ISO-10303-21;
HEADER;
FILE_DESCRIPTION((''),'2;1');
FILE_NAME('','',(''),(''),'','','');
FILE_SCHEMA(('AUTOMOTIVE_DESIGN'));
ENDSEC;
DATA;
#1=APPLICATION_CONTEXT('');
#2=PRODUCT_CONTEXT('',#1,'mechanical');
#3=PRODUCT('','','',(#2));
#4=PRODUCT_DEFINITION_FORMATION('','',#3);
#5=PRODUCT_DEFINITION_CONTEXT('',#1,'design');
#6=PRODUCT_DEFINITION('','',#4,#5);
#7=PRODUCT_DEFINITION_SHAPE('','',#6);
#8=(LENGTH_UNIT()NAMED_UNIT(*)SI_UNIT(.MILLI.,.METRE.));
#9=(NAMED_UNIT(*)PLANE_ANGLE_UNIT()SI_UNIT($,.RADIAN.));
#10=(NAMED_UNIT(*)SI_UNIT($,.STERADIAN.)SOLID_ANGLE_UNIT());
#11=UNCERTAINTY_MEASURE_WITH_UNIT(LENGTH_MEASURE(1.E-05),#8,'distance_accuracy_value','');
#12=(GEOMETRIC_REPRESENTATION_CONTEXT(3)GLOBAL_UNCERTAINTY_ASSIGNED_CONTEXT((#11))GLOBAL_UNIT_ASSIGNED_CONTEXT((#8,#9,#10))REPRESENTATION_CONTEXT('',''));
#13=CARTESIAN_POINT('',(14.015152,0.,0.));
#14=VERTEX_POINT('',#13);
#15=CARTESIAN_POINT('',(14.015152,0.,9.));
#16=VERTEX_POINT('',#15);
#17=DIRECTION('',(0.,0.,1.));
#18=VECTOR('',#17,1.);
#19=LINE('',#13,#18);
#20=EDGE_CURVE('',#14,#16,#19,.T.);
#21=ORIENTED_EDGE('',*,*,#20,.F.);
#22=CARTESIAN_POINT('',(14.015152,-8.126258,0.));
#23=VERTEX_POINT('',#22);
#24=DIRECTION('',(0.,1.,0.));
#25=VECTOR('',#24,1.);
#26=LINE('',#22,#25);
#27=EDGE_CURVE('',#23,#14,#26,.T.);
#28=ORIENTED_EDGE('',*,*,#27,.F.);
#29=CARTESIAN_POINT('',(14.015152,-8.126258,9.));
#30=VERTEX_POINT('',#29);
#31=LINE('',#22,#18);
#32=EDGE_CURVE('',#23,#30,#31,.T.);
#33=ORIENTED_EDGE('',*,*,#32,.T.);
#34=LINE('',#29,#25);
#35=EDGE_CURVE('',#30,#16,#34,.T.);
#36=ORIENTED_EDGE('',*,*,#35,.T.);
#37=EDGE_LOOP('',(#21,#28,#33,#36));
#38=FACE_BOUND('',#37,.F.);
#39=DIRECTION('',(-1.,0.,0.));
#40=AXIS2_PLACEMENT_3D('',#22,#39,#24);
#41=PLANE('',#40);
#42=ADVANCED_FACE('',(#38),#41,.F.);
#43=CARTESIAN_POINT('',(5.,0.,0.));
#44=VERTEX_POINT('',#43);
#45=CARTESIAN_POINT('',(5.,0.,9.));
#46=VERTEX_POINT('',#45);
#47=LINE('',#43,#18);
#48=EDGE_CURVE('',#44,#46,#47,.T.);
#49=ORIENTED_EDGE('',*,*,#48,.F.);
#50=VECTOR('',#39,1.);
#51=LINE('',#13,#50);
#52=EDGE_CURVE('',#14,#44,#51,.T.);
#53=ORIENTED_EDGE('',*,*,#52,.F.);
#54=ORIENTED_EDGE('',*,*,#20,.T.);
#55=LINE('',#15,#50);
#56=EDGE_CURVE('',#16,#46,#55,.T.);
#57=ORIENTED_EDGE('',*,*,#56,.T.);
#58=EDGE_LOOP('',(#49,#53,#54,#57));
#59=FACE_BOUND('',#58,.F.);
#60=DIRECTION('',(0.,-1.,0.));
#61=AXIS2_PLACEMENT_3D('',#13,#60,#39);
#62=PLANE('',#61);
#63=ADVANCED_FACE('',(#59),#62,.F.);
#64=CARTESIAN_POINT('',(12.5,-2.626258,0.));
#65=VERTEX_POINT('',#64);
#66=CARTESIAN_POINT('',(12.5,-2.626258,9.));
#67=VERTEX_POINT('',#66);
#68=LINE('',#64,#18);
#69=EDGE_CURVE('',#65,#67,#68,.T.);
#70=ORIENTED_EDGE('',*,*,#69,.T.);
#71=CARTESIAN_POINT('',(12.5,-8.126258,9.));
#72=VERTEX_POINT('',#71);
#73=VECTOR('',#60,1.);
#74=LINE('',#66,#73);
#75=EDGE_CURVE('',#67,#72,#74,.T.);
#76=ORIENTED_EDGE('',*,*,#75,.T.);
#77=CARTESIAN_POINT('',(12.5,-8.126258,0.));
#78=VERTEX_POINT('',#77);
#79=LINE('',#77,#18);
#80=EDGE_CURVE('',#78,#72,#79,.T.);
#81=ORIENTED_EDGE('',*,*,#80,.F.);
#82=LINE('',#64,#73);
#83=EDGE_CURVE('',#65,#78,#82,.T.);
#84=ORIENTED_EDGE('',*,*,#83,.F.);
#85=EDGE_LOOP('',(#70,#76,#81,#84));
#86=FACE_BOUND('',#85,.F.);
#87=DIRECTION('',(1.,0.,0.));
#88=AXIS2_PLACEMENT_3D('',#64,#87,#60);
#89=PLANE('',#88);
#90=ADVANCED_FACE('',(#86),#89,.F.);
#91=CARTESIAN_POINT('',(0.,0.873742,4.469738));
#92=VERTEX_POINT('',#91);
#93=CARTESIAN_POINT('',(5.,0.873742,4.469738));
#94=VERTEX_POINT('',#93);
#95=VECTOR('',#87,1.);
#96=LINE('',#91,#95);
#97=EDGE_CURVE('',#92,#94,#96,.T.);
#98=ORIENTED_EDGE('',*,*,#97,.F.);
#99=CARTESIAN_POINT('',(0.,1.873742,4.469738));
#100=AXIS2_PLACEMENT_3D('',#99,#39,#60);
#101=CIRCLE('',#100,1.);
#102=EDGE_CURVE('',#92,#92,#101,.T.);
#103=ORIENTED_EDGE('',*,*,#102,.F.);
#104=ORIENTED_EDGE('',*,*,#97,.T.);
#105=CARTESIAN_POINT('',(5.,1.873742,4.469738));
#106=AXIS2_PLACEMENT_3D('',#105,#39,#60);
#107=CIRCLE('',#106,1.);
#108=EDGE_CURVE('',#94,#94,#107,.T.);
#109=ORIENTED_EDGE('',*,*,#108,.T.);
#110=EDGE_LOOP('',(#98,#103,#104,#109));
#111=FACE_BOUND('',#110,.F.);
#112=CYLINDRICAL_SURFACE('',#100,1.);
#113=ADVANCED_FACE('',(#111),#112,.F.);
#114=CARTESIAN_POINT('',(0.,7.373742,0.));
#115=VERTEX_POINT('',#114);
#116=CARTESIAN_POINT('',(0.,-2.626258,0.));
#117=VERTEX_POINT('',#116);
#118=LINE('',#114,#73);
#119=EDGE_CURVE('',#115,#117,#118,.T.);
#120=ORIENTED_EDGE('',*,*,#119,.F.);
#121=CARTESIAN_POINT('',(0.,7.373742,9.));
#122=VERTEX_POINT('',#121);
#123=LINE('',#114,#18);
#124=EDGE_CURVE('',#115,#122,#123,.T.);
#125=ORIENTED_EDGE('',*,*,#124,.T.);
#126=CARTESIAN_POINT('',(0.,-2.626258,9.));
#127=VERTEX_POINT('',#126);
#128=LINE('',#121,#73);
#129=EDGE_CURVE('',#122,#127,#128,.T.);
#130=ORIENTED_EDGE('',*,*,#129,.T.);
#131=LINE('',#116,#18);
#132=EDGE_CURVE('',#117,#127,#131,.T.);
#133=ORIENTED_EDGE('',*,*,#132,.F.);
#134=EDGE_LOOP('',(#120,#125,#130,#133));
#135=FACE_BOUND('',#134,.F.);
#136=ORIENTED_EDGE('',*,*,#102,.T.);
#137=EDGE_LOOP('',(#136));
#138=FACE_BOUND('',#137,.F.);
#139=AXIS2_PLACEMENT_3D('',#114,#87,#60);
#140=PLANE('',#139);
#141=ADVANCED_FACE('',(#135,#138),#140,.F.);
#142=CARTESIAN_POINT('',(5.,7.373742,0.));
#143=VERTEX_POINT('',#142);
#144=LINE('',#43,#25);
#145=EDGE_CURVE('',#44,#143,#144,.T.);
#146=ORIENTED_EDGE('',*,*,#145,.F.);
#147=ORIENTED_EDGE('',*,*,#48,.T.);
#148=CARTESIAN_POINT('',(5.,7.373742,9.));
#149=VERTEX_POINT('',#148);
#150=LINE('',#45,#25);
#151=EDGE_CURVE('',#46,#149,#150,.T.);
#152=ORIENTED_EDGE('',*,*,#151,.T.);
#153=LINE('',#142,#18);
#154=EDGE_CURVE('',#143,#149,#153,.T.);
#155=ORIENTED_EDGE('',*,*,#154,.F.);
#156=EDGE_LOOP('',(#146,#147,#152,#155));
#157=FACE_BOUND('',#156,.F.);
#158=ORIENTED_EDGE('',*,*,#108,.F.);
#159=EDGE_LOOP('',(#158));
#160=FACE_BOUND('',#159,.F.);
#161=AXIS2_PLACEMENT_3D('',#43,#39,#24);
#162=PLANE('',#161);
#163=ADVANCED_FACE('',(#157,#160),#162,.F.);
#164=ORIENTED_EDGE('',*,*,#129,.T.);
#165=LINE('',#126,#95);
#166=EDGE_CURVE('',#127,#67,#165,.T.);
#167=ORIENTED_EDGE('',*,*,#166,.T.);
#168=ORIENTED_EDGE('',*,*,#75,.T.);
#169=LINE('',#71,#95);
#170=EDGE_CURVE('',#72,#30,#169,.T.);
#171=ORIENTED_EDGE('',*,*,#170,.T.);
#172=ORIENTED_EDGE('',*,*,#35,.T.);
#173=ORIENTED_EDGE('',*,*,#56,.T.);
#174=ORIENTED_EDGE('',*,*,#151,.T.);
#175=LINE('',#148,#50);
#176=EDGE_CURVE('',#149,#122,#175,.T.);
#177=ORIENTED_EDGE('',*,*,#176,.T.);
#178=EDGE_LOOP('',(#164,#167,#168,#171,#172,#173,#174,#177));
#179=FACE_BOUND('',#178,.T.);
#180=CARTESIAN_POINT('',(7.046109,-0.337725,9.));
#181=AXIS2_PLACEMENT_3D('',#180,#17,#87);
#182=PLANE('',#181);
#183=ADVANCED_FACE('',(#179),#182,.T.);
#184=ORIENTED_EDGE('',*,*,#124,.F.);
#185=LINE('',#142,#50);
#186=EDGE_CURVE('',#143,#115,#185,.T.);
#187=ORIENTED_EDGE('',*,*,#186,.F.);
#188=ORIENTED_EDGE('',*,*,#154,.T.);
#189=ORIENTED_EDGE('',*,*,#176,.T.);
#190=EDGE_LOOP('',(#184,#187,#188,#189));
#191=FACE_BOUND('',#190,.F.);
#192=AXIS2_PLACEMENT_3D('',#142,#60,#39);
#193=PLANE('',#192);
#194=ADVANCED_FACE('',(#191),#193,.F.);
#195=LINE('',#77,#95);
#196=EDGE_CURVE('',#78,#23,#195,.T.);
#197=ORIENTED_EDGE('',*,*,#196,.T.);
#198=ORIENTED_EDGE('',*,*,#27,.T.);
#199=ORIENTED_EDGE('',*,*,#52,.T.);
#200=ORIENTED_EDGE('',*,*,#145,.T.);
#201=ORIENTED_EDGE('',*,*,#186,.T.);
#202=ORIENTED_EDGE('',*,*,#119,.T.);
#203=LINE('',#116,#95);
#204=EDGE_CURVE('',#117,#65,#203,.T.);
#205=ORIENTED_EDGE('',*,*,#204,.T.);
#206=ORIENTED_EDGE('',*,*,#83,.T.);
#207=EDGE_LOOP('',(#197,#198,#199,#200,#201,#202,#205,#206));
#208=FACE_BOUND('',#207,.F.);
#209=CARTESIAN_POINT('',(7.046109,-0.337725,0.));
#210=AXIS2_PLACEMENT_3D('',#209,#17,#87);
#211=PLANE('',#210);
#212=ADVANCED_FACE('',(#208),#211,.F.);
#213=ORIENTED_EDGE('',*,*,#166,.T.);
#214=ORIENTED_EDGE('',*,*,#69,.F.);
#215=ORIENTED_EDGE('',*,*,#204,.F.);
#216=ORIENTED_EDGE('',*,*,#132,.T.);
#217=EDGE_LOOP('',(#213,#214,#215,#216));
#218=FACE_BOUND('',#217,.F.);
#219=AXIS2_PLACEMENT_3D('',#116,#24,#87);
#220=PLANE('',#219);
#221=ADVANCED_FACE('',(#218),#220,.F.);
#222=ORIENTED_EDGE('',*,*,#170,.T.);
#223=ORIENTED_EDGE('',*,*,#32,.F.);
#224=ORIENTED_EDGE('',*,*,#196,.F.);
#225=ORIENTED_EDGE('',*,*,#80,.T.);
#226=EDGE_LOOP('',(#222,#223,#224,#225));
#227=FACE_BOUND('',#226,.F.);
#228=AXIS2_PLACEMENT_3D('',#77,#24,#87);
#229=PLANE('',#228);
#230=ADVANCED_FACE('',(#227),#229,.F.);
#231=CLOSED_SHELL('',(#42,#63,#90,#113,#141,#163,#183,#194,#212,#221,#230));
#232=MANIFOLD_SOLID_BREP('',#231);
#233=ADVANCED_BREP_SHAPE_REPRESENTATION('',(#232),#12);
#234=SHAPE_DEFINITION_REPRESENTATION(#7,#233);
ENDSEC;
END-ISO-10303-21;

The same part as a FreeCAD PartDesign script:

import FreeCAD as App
import Part
import Sketcher

doc = App.newDocument("Part")
body = doc.addObject("PartDesign::Body", "Body")

# Sketch on XY plane
sketch1 = body.newObject("Sketcher::SketchObject", "Sketch")
sketch1.AttachmentSupport = (doc.getObject("XY_Plane"), [""])
sketch1.MapMode = "FlatFace"
sketch1.addGeometry(Part.LineSegment(App.Vector(5, 7.4, 0), App.Vector(0, 7.4, 0)), False)
sketch1.addGeometry(Part.LineSegment(App.Vector(0, 7.4, 0), App.Vector(0, -2.6, 0)), False)
sketch1.addGeometry(Part.LineSegment(App.Vector(0, -2.6, 0), App.Vector(12.5, -2.6, 0)), False)
sketch1.addGeometry(Part.LineSegment(App.Vector(12.5, -2.6, 0), App.Vector(12.5, -8.1, 0)), False)
sketch1.addGeometry(Part.LineSegment(App.Vector(12.5, -8.1, 0), App.Vector(14, -8.1, 0)), False)
sketch1.addGeometry(Part.LineSegment(App.Vector(14, -8.1, 0), App.Vector(14, 0, 0)), False)
sketch1.addGeometry(Part.LineSegment(App.Vector(14, 0, 0), App.Vector(5, 0, 0)), False)
sketch1.addGeometry(Part.LineSegment(App.Vector(5, 0, 0), App.Vector(5, 7.4, 0)), False)
sketch1.addConstraint(Sketcher.Constraint("Coincident", 0, 2, 1, 1))
sketch1.addConstraint(Sketcher.Constraint("Coincident", 1, 2, 2, 1))
sketch1.addConstraint(Sketcher.Constraint("Coincident", 2, 2, 3, 1))
sketch1.addConstraint(Sketcher.Constraint("Coincident", 3, 2, 4, 1))
sketch1.addConstraint(Sketcher.Constraint("Coincident", 4, 2, 5, 1))
sketch1.addConstraint(Sketcher.Constraint("Coincident", 5, 2, 6, 1))
sketch1.addConstraint(Sketcher.Constraint("Coincident", 6, 2, 7, 1))
sketch1.addConstraint(Sketcher.Constraint("Coincident", 7, 2, 0, 1))
sketch1.addConstraint(Sketcher.Constraint("Horizontal", 0))
sketch1.addConstraint(Sketcher.Constraint("Vertical", 1))
sketch1.addConstraint(Sketcher.Constraint("Horizontal", 2))
sketch1.addConstraint(Sketcher.Constraint("Vertical", 3))
sketch1.addConstraint(Sketcher.Constraint("Horizontal", 4))
sketch1.addConstraint(Sketcher.Constraint("Vertical", 5))
sketch1.addConstraint(Sketcher.Constraint("Horizontal", 6))
sketch1.addConstraint(Sketcher.Constraint("Vertical", 7))
sketch1.addConstraint(Sketcher.Constraint("PointOnObject", 0, 2, -2))
sketch1.addConstraint(Sketcher.Constraint("PointOnObject", 5, 2, -1))
sketch1.addConstraint(Sketcher.Constraint("DistanceX", 0, 2, 0, 1, 5.0))
sketch1.addConstraint(Sketcher.Constraint("DistanceY", 1, 2, 1, 1, 10.0))
sketch1.addConstraint(Sketcher.Constraint("DistanceX", 2, 1, 2, 2, 12.5))
sketch1.addConstraint(Sketcher.Constraint("DistanceY", 3, 2, 3, 1, 5.5))
sketch1.addConstraint(Sketcher.Constraint("DistanceX", 4, 1, 4, 2, 1.515152))
sketch1.addConstraint(Sketcher.Constraint("DistanceY", 5, 1, 5, 2, 8.126258))
pad1 = body.newObject("PartDesign::Pad", "Pad")
pad1.Profile = sketch1
pad1.Length = 9

# Sketch on YZ plane
sketch2 = body.newObject("Sketcher::SketchObject", "Sketch001")
sketch2.AttachmentSupport = (doc.getObject("YZ_Plane"), [""])
sketch2.MapMode = "FlatFace"
sketch2.addGeometry(Part.Circle(App.Vector(1.9, 4.5, 0), App.Vector(0, 0, 1), 1), False)
sketch2.addConstraint(Sketcher.Constraint("Diameter", 0, 2.0))
sketch2.addConstraint(Sketcher.Constraint("DistanceY", -1, 1, 0, 3, 4.469738))
sketch2.addConstraint(Sketcher.Constraint("DistanceX", -1, 1, 0, 3, 1.873742))
pocket1 = body.newObject("PartDesign::Pocket", "Pocket")
pocket1.Profile = sketch2
pocket1.Length = 25
pocket1.Reversed = True

doc.recompute()
